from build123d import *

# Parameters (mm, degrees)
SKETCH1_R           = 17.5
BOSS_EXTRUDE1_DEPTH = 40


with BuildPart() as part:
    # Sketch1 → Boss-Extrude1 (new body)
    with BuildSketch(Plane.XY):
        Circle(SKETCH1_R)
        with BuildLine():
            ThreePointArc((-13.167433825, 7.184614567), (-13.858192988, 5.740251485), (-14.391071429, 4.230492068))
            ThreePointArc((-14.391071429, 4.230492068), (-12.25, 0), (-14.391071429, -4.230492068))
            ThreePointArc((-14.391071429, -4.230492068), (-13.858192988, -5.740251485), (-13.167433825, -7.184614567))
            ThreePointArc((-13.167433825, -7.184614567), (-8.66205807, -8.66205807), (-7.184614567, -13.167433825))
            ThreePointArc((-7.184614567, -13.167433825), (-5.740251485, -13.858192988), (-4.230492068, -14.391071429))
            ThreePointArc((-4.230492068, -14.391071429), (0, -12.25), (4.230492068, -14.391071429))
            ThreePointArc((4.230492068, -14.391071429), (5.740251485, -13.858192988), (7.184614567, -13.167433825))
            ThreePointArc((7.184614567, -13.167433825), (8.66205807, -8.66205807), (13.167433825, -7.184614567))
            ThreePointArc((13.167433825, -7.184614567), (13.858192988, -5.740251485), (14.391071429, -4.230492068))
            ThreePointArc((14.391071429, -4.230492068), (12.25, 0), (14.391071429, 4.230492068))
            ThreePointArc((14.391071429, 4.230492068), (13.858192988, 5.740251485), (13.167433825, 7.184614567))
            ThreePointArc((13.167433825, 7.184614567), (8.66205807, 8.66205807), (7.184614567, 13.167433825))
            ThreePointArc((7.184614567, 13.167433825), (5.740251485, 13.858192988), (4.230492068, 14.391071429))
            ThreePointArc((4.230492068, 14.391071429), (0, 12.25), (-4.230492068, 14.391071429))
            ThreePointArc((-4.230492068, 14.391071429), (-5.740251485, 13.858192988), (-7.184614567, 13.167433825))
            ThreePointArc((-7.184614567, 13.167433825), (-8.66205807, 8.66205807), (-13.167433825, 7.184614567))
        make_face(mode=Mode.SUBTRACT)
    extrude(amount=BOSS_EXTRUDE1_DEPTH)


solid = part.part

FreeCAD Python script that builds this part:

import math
import FreeCAD as App
import Part
import Sketcher
Q = App.Units.Quantity

doc = App.newDocument("Part")
body = doc.addObject("PartDesign::Body", "Body")

sketch1 = body.newObject("Sketcher::SketchObject", "Sketch")
sketch1.AttachmentSupport = (doc.getObject("XY_Plane"), [""])
sketch1.MapMode = "FlatFace"
sketch1.addGeometry(Part.Circle(App.Vector(0, 0, 0), App.Vector(0, 0, 1), 17.5), False)
sketch1.addGeometry(Part.ArcOfCircle(Part.Circle(App.Vector(0, 0, 0), App.Vector(0, 0, 1), 15), math.radians(151.38), math.radians(163.62)), False)
sketch1.addGeometry(Part.ArcOfCircle(Part.Circle(App.Vector(-12.4, 12.4, 0), App.Vector(0, 0, 1), 5.2), math.radians(-99), math.radians(9)), False)
sketch1.addGeometry(Part.ArcOfCircle(Part.Circle(App.Vector(0, 0, 0), App.Vector(0, 0, 1), 15), math.radians(106.38), math.radians(118.62)), False)
sketch1.addGeometry(Part.ArcOfCircle(Part.Circle(App.Vector(0, 17.5, 0), App.Vector(0, 0, 1), 5.2), math.radians(-144), math.radians(-36)), False)
sketch1.addGeometry(Part.ArcOfCircle(Part.Circle(App.Vector(0, 0, 0), App.Vector(0, 0, 1), 15), math.radians(61.38), math.radians(73.62)), False)
sketch1.addGeometry(Part.ArcOfCircle(Part.Circle(App.Vector(12.4, 12.4, 0), App.Vector(0, 0, 1), 5.2), math.radians(171), math.radians(279)), False)
sketch1.addGeometry(Part.ArcOfCircle(Part.Circle(App.Vector(0, 0, 0), App.Vector(0, 0, 1), 15), math.radians(16.38), math.radians(28.62)), False)
sketch1.addGeometry(Part.ArcOfCircle(Part.Circle(App.Vector(17.5, 0, 0), App.Vector(0, 0, 1), 5.2), math.radians(126), math.radians(234)), False)
sketch1.addGeometry(Part.ArcOfCircle(Part.Circle(App.Vector(0, 0, 0), App.Vector(0, 0, 1), 15), math.radians(-28.62), math.radians(-16.38)), False)
sketch1.addGeometry(Part.ArcOfCircle(Part.Circle(App.Vector(12.4, -12.4, 0), App.Vector(0, 0, 1), 5.2), math.radians(81), math.radians(189)), False)
sketch1.addGeometry(Part.ArcOfCircle(Part.Circle(App.Vector(0, 0, 0), App.Vector(0, 0, 1), 15), math.radians(-73.62), math.radians(-61.38)), False)
sketch1.addGeometry(Part.ArcOfCircle(Part.Circle(App.Vector(0, -17.5, 0), App.Vector(0, 0, 1), 5.2), math.radians(36), math.radians(144)), False)
sketch1.addGeometry(Part.ArcOfCircle(Part.Circle(App.Vector(0, 0, 0), App.Vector(0, 0, 1), 15), math.radians(-118.62), math.radians(-106.38)), False)
sketch1.addGeometry(Part.ArcOfCircle(Part.Circle(App.Vector(-12.4, -12.4, 0), App.Vector(0, 0, 1), 5.2), math.radians(-9), math.radians(99)), False)
sketch1.addGeometry(Part.ArcOfCircle(Part.Circle(App.Vector(0, 0, 0), App.Vector(0, 0, 1), 15), math.radians(-163.62), math.radians(-151.38)), False)
sketch1.addGeometry(Part.ArcOfCircle(Part.Circle(App.Vector(-17.5, 0, 0), App.Vector(0, 0, 1), 5.2), math.radians(-54), math.radians(54)), False)
sketch1.addConstraint(Sketcher.Constraint("Coincident", 1, 1, 2, 1))
sketch1.addConstraint(Sketcher.Constraint("Coincident", 2, 2, 3, 2))
sketch1.addConstraint(Sketcher.Constraint("Coincident", 3, 1, 4, 1))
sketch1.addConstraint(Sketcher.Constraint("Coincident", 4, 2, 5, 2))
sketch1.addConstraint(Sketcher.Constraint("Coincident", 5, 1, 6, 1))
sketch1.addConstraint(Sketcher.Constraint("Coincident", 6, 2, 7, 2))
sketch1.addConstraint(Sketcher.Constraint("Coincident", 7, 1, 8, 1))
sketch1.addConstraint(Sketcher.Constraint("Coincident", 8, 2, 9, 2))
sketch1.addConstraint(Sketcher.Constraint("Coincident", 9, 1, 10, 1))
sketch1.addConstraint(Sketcher.Constraint("Coincident", 10, 2, 11, 2))
sketch1.addConstraint(Sketcher.Constraint("Coincident", 11, 1, 12, 1))
sketch1.addConstraint(Sketcher.Constraint("Coincident", 12, 2, 13, 2))
sketch1.addConstraint(Sketcher.Constraint("Coincident", 13, 1, 14, 1))
sketch1.addConstraint(Sketcher.Constraint("Coincident", 14, 2, 15, 2))
sketch1.addConstraint(Sketcher.Constraint("Coincident", 15, 1, 16, 1))
sketch1.addConstraint(Sketcher.Constraint("Coincident", 16, 2, 1, 2))
sketch1.addConstraint(Sketcher.Constraint("Coincident", 0, 3, -1, 1))
sketch1.addConstraint(Sketcher.Constraint("Coincident", 1, 3, -1, 1))
sketch1.addConstraint(Sketcher.Constraint("Coincident", 3, 3, -1, 1))
sketch1.addConstraint(Sketcher.Constraint("Coincident", 5, 3, -1, 1))
sketch1.addConstraint(Sketcher.Constraint("Coincident", 7, 3, -1, 1))
sketch1.addConstraint(Sketcher.Constraint("Coincident", 9, 3, -1, 1))
sketch1.addConstraint(Sketcher.Constraint("Coincident", 11, 3, -1, 1))
sketch1.addConstraint(Sketcher.Constraint("Coincident", 13, 3, -1, 1))
sketch1.addConstraint(Sketcher.Constraint("Coincident", 15, 3, -1, 1))
sketch1.addConstraint(Sketcher.Constraint("Equal", 1, 3))
sketch1.addConstraint(Sketcher.Constraint("Equal", 2, 4))
sketch1.addConstraint(Sketcher.Constraint("Equal", 3, 5))
sketch1.addConstraint(Sketcher.Constraint("Equal", 4, 6))
sketch1.addConstraint(Sketcher.Constraint("Equal", 5, 7))
sketch1.addConstraint(Sketcher.Constraint("Equal", 6, 8))
sketch1.addConstraint(Sketcher.Constraint("Equal", 7, 9))
sketch1.addConstraint(Sketcher.Constraint("Equal", 8, 10))
sketch1.addConstraint(Sketcher.Constraint("Equal", 9, 11))
sketch1.addConstraint(Sketcher.Constraint("Equal", 10, 12))
sketch1.addConstraint(Sketcher.Constraint("Equal", 11, 13))
sketch1.addConstraint(Sketcher.Constraint("Equal", 12, 14))
sketch1.addConstraint(Sketcher.Constraint("Equal", 13, 15))
sketch1.addConstraint(Sketcher.Constraint("Equal", 14, 16))
sketch1.addConstraint(Sketcher.Constraint("Symmetric", 2, 3, 10, 3, -1, 1))
sketch1.addConstraint(Sketcher.Constraint("Symmetric", 4, 3, 12, 3, -1, 1))
sketch1.addConstraint(Sketcher.Constraint("Symmetric", 6, 3, 14, 3, -1, 1))
sketch1.addConstraint(Sketcher.Constraint("Symmetric", 8, 3, 16, 3, -1, 1))
sketch1.addConstraint(Sketcher.Constraint("Symmetric", 2, 3, 6, 3, -2))
sketch1.addConstraint(Sketcher.Constraint("PointOnObject", 4, 3, -2))
sketch1.addConstraint(Sketcher.Constraint("PointOnObject", 8, 3, -1))
sketch1.addConstraint(Sketcher.Constraint("Diameter", 0, Q("35 mm")))
sketch1.addConstraint(Sketcher.Constraint("Radius", 1, Q("15 mm")))
sketch1.addConstraint(Sketcher.Constraint("Radius", 2, Q("5.25 mm")))
sketch1.addConstraint(Sketcher.Constraint("DistanceY", -1, 1, 4, 3, Q("17.5 mm")))
sketch1.addConstraint(Sketcher.Constraint("DistanceX", -1, 1, 8, 3, Q("17.5 mm")))
sketch1.addConstraint(Sketcher.Constraint("DistanceX", 2, 3, -1, 1, Q("12.374369 mm")))
sketch1.addConstraint(Sketcher.Constraint("DistanceY", -1, 1, 2, 3, Q("12.374369 mm")))
pad1 = body.newObject("PartDesign::Pad", "Pad")
pad1.Profile = sketch1
pad1.Length = 40

doc.recompute()
